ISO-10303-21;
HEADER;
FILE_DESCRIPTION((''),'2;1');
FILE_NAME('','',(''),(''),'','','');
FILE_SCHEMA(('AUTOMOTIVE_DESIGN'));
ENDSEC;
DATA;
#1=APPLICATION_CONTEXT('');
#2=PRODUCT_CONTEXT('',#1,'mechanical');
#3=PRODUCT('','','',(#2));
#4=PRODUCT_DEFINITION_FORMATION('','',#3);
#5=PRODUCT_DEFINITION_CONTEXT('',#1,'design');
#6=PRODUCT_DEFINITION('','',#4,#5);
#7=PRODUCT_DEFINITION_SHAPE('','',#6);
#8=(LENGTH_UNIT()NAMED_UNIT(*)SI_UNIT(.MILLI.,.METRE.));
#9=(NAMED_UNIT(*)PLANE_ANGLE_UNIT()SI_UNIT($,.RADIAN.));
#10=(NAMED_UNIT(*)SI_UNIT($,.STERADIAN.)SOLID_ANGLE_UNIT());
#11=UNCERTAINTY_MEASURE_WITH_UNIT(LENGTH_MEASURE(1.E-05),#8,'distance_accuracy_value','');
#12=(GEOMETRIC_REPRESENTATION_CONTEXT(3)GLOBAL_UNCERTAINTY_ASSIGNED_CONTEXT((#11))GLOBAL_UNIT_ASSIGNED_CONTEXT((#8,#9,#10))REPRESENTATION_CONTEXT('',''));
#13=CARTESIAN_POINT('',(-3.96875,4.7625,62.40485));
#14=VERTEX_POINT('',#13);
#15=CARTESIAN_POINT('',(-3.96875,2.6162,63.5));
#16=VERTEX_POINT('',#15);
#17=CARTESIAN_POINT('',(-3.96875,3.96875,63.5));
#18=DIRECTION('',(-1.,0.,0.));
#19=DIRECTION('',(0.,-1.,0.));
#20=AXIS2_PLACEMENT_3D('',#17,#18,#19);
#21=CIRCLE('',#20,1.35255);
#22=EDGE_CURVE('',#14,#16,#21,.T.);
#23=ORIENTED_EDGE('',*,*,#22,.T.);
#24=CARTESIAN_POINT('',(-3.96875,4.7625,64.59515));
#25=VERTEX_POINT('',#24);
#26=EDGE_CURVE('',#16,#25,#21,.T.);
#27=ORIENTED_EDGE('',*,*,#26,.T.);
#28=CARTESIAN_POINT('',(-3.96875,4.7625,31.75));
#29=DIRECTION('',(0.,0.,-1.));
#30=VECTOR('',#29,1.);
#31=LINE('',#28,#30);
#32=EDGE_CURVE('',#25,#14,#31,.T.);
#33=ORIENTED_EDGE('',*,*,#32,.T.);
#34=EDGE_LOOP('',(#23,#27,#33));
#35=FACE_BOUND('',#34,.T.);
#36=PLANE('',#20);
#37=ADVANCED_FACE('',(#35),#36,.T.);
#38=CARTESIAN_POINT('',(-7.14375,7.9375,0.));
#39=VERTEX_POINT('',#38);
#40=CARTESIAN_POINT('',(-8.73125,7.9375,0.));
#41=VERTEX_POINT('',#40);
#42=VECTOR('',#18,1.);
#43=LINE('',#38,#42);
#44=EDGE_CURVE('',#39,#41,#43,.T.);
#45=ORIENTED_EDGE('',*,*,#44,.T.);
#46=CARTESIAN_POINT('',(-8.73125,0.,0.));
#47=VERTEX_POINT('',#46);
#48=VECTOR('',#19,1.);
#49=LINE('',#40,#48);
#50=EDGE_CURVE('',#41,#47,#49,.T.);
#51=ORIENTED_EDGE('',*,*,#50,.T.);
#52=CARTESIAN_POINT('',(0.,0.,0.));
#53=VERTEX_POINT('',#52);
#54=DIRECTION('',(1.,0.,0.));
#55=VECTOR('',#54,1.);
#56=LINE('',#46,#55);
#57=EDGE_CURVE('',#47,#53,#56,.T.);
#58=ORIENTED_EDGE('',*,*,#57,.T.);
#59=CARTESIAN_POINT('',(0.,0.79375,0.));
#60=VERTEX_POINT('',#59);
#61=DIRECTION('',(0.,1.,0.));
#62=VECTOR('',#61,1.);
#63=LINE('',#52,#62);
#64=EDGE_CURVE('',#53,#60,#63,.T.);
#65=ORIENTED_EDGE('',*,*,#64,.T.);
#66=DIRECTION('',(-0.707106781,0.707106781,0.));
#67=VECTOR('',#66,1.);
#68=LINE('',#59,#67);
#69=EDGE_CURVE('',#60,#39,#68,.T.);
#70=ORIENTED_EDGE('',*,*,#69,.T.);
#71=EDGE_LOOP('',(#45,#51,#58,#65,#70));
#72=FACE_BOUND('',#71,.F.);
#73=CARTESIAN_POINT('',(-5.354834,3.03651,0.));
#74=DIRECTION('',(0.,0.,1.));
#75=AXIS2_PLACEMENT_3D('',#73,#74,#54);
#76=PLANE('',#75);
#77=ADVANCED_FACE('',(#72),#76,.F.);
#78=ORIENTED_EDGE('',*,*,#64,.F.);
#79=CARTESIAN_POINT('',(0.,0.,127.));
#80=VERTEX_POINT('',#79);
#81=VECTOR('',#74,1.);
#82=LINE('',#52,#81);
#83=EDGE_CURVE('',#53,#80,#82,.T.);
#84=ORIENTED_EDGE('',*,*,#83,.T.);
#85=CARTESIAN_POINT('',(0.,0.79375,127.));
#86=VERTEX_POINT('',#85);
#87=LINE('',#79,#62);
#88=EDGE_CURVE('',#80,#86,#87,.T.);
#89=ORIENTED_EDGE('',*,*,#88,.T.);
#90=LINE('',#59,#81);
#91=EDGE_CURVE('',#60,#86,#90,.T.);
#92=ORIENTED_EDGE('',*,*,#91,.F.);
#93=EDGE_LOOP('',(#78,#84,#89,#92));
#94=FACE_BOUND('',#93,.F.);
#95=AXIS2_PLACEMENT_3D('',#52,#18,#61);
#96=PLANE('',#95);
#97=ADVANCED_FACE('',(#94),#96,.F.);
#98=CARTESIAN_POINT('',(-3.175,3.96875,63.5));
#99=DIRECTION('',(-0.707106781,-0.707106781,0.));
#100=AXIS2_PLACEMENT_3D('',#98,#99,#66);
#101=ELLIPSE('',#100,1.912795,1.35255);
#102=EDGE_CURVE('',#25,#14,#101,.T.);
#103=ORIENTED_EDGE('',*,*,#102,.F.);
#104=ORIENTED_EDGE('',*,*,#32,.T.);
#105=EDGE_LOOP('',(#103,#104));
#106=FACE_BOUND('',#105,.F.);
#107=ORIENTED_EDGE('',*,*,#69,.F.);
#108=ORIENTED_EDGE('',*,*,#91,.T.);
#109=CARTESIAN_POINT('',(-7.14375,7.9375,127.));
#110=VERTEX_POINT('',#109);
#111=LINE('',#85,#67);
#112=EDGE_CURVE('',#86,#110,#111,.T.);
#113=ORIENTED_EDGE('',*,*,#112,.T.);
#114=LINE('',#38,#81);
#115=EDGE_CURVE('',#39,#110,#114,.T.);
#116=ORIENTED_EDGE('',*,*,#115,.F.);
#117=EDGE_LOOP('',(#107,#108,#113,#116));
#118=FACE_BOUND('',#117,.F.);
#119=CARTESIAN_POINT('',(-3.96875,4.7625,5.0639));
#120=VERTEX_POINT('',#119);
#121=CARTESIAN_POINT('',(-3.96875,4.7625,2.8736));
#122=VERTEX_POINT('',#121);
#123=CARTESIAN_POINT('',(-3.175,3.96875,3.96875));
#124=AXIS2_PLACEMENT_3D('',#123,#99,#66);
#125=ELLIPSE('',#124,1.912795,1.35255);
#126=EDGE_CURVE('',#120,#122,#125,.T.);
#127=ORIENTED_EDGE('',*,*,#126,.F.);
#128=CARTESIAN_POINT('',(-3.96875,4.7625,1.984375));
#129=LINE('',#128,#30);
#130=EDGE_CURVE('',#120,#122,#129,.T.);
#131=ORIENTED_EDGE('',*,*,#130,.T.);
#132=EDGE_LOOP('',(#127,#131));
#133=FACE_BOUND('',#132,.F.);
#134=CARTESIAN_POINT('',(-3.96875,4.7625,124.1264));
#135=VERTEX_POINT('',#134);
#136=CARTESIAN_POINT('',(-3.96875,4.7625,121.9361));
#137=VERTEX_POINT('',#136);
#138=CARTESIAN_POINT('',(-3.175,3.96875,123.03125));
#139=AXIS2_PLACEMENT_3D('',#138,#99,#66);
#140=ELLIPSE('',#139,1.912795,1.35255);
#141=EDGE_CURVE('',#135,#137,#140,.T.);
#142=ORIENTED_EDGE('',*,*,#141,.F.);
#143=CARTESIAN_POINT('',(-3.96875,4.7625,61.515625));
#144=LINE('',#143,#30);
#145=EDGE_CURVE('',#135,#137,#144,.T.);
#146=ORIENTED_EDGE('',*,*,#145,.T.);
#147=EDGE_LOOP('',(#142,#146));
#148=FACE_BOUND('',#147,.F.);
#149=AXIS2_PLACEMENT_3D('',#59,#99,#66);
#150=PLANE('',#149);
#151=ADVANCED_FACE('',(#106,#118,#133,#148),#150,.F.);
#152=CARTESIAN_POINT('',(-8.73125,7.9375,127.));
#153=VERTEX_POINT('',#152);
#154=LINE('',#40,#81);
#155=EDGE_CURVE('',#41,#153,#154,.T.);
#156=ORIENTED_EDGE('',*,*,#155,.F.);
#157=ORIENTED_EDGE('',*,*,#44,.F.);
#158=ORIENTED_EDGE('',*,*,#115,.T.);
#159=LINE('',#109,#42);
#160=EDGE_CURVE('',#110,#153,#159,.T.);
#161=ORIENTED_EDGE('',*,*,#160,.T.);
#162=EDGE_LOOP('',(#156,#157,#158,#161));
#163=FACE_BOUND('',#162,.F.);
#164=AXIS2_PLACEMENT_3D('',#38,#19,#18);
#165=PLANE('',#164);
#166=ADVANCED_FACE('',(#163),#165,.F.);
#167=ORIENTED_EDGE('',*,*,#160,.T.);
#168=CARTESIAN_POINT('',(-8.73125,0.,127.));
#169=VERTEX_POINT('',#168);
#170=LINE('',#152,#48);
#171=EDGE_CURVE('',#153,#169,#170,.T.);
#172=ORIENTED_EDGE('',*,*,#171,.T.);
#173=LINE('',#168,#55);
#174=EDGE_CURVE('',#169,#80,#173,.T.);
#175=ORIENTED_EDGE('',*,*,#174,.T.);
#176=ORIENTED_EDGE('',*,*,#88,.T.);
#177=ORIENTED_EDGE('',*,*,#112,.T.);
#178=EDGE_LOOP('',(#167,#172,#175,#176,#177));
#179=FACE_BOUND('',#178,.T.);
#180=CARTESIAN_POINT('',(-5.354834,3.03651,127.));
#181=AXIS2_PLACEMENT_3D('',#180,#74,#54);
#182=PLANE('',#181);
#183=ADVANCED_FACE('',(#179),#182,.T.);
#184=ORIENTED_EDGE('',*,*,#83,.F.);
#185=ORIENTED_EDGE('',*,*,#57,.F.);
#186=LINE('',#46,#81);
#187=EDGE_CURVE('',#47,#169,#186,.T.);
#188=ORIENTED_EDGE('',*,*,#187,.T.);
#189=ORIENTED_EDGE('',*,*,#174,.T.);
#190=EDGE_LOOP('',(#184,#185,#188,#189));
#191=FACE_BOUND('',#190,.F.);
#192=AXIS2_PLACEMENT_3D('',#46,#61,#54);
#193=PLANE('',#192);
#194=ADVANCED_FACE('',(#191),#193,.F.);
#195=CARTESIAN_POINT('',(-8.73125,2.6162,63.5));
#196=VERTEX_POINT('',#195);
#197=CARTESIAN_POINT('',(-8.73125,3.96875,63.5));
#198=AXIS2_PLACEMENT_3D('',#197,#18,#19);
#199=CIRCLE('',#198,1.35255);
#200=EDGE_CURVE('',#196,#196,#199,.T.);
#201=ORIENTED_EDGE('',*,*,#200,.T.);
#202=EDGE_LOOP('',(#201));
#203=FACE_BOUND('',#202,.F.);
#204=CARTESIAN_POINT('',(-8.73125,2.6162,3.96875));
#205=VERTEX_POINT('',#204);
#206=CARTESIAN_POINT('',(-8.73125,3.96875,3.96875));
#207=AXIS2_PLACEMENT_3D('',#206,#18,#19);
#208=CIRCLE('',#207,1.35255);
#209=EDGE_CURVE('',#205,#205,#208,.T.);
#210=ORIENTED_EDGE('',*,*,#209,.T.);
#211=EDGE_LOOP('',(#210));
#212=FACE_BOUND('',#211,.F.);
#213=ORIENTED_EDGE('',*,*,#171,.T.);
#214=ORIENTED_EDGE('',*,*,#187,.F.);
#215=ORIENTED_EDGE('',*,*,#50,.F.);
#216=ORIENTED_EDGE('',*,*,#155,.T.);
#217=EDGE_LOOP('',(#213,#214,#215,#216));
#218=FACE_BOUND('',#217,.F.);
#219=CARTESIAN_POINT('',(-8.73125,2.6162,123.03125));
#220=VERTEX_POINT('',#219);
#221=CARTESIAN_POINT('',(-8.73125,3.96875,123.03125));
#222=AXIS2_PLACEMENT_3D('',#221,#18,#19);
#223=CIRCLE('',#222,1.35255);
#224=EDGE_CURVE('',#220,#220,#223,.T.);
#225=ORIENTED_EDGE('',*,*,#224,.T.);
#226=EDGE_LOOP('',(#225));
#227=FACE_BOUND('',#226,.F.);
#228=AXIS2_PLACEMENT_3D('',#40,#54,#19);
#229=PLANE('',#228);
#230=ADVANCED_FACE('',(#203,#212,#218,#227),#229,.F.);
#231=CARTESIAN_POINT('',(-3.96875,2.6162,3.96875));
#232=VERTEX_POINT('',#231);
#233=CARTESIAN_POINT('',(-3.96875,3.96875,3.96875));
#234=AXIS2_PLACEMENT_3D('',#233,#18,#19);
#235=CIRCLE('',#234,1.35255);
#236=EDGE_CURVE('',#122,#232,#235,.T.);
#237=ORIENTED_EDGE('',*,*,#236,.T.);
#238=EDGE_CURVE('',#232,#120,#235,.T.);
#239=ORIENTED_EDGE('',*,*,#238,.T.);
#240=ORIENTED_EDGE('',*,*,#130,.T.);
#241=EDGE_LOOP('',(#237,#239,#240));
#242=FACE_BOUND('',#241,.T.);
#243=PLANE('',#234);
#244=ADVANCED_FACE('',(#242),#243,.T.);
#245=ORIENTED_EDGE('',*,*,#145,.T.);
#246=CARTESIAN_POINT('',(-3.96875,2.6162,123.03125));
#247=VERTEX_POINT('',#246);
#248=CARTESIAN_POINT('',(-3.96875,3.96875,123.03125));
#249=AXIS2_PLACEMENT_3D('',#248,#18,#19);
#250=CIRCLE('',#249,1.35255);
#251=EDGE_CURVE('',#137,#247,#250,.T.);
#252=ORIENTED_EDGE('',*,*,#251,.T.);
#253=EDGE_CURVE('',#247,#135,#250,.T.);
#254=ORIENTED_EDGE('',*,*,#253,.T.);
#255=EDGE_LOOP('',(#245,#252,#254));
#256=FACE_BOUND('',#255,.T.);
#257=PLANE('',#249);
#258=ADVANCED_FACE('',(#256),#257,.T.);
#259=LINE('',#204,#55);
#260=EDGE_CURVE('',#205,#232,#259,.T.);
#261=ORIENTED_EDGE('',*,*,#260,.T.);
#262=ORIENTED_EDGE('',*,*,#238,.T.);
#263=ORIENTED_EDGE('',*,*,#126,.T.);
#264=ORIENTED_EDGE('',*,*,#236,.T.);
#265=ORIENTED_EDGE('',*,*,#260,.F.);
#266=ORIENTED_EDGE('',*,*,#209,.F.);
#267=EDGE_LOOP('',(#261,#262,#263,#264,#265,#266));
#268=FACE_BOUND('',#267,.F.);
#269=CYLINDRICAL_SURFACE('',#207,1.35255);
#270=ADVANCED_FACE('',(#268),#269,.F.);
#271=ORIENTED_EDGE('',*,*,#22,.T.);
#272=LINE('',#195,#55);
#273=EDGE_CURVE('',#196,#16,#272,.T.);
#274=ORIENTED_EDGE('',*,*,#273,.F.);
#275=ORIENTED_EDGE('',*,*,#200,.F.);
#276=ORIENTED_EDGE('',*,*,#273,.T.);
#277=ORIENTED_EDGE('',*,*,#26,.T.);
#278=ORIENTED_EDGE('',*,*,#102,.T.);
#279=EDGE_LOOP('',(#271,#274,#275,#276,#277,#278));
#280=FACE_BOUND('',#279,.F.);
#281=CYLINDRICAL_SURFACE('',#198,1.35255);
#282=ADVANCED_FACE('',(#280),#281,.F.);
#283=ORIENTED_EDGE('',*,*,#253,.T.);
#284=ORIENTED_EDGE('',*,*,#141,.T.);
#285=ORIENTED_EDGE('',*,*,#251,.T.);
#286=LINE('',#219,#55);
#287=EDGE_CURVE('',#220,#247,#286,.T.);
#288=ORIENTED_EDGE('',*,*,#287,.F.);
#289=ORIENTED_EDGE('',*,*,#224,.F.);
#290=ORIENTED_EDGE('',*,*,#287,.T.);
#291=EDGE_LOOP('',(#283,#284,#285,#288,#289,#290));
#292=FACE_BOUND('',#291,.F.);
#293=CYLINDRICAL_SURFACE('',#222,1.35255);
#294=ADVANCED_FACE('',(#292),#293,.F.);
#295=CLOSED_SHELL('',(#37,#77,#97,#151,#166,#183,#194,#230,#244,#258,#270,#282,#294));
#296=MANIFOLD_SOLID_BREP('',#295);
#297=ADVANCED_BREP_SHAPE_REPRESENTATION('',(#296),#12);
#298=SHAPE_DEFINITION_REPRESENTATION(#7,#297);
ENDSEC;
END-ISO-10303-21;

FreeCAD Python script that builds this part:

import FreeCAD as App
import Part
import Sketcher

V = App.Vector
Q = App.Units.Quantity


def add_polygon(sketch, points):
    """Adds a closed chain of lines whose ends are joined by coincident constraints."""
    first, n = sketch.GeometryCount, len(points)
    for a, b in zip(points, points[1:] + points[:1]):
        sketch.addGeometry(Part.LineSegment(App.Vector(*a, 0), App.Vector(*b, 0)), False)
    for i in range(n):
        sketch.addConstraint(Sketcher.Constraint("Coincident", first + i, 2, first + (i + 1) % n, 1))

doc = App.newDocument("Part")
params = doc.addObject("Spreadsheet::Sheet", "Params")
for row, (alias, value) in enumerate([
    ("sketch1_width", "0.34375 in"),
    ("sketch1_width2", "0.0625 in"),
    ("sketch1_height", "0.03125 in"),
    ("pad1_length", "5 in"),
    ("pocket1_length", "0.1875 in"),
], start=1):
    params.set(f"A{row}", alias)
    params.set(f"B{row}", "=" + value)
    params.setAlias(f"B{row}", alias)

body = doc.addObject("PartDesign::Body", "Body")

# Sketch on XY plane
sketch1 = doc.addObject("Sketcher::SketchObject", "Sketch")
body.addObject(sketch1)
sketch1.AttachmentSupport = (doc.XY_Plane, [""])
sketch1.MapMode = "FlatFace"
add_polygon(sketch1, [(-8.7, 0), (0, 0), (0, 0.8), (-7.1, 7.9), (-8.7, 7.9)])  # lines 0-4
sketch1.addConstraint([
    Sketcher.Constraint("Horizontal", 0),
    Sketcher.Constraint("Vertical", 1),
    Sketcher.Constraint("Horizontal", 3),
    Sketcher.Constraint("Vertical", 4),
    Sketcher.Constraint("Coincident", 0, 2, -1, 1),
    Sketcher.Constraint("Angle", 2, Q("135 deg")),
    Sketcher.Constraint("DistanceX", 0, 1, 0, 2, Q("0.34375 in")),
    Sketcher.Constraint("DistanceX", 3, 2, 3, 1, Q("0.0625 in")),
    Sketcher.Constraint("DistanceY", 1, 1, 1, 2, Q("0.03125 in")),
])
sketch1.setExpression("Constraints[11]", "Params.sketch1_width")
sketch1.setExpression("Constraints[12]", "Params.sketch1_width2")
sketch1.setExpression("Constraints[13]", "Params.sketch1_height")
pad1 = doc.addObject("PartDesign::Pad", "Pad")
body.addObject(pad1)
pad1.Profile = sketch1
pad1.setExpression("Length", "Params.pad1_length")

# Sketch on YZ plane
sketch2 = doc.addObject("Sketcher::SketchObject", "Sketch001")
body.addObject(sketch2)
sketch2.AttachmentSupport = (doc.YZ_Plane, [""])
sketch2.MapMode = "FlatFace"
sketch2.AttachmentOffset = App.Placement(V(0, 0, -0.34375 * 25.4), App.Rotation())
sketch2.addGeometry([
    Part.Circle(V(4, 123, 0), V(0, 0, 1), 1.4),
    Part.Circle(V(4, 63.5, 0), V(0, 0, 1), 1.4),
    Part.Circle(V(4, 4, 0), V(0, 0, 1), 1.4),
], False)
sketch2.addConstraint([
    Sketcher.Constraint("Equal", 0, 1),
    Sketcher.Constraint("Equal", 1, 2),
    Sketcher.Constraint("Vertical", 0, 3, 1, 3),
    Sketcher.Constraint("Vertical", 1, 3, 2, 3),
    Sketcher.Constraint("Diameter", 0, Q("0.1065 in")),
    Sketcher.Constraint("DistanceY", -1, 1, 1, 3, Q("2.5 in")),
    Sketcher.Constraint("DistanceX", -1, 1, 0, 3, Q("0.15625 in")),
    Sketcher.Constraint("DistanceY", -1, 1, 0, 3, Q("4.84375 in")),
    Sketcher.Constraint("DistanceY", -1, 1, 2, 3, Q("0.15625 in")),
])
pocket1 = doc.addObject("PartDesign::Pocket", "Pocket")
body.addObject(pocket1)
pocket1.Profile = sketch2
pocket1.setExpression("Length", "Params.pocket1_length")
pocket1.Reversed = True

doc.recompute()
